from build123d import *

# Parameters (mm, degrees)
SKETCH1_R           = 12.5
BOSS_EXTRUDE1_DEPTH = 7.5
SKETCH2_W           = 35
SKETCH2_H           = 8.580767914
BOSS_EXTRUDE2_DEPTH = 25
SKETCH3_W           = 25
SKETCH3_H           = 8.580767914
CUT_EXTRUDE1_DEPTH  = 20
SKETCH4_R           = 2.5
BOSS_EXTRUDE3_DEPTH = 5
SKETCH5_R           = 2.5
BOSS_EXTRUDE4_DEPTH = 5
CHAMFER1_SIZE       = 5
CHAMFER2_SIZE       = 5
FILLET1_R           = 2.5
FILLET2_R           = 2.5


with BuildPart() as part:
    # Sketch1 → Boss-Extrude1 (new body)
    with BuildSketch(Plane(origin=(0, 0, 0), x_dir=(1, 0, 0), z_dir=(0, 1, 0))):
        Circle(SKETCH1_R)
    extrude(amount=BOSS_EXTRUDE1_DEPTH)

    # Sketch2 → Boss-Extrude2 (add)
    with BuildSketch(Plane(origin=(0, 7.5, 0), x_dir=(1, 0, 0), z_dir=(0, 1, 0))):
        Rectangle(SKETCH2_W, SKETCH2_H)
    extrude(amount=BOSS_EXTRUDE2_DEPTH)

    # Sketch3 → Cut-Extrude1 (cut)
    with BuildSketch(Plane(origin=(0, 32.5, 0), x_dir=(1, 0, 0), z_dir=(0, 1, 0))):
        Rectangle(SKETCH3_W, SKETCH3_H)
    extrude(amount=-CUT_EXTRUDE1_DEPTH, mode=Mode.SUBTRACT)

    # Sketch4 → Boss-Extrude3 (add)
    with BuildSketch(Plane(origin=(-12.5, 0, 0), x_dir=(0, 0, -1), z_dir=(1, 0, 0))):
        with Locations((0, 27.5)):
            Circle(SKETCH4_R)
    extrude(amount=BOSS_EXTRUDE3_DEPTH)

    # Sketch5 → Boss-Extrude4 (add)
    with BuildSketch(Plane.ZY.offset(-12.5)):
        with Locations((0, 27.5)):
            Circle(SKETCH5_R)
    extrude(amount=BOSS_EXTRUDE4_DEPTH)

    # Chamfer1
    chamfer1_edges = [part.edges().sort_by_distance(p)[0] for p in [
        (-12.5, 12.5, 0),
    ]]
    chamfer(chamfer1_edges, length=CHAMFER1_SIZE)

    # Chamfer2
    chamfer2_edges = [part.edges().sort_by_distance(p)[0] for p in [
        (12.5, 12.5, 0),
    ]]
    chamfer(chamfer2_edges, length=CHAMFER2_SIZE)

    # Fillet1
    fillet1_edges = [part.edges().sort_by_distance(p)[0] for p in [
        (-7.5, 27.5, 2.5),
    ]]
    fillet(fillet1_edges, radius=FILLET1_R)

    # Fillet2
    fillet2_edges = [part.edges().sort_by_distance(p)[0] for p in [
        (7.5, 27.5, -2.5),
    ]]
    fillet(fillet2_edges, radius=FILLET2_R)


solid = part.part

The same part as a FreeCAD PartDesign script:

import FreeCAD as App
import Part
import Sketcher
Q = App.Units.Quantity


def edges_at(feature, points):
    """Names of the edges that pass closest to the given points."""
    edges = feature.Shape.Edges
    near = lambda p: min(range(len(edges)), key=lambda i: edges[i].distToShape(Part.Vertex(*p))[0])
    return sorted({f"Edge{near(p) + 1}" for p in points})

doc = App.newDocument("Part")
body = doc.addObject("PartDesign::Body", "Body")

# Sketch on XZ plane
sketch1 = body.newObject("Sketcher::SketchObject", "Sketch")
sketch1.AttachmentSupport = (doc.getObject("XZ_Plane"), [""])
sketch1.MapMode = "FlatFace"
sketch1.addGeometry(Part.Circle(App.Vector(0, 0, 0), App.Vector(0, 0, 1), 12), False)
sketch1.addConstraint(Sketcher.Constraint("Coincident", 0, 3, -1, 1))
sketch1.addConstraint(Sketcher.Constraint("Diameter", 0, Q("25 mm")))
pad1 = body.newObject("PartDesign::Pad", "Pad")
pad1.Profile = sketch1
pad1.Length = 7.5
pad1.Reversed = True

# Sketch on XZ plane
sketch2 = body.newObject("Sketcher::SketchObject", "Sketch001")
sketch2.AttachmentSupport = (doc.getObject("XZ_Plane"), [""])
sketch2.MapMode = "FlatFace"
sketch2.AttachmentOffset = App.Placement(App.Vector(0, 0, -7.5), App.Rotation())
sketch2.addGeometry(Part.LineSegment(App.Vector(-18, -4, 0), App.Vector(-18, 4, 0)), False)
sketch2.addGeometry(Part.LineSegment(App.Vector(-18, 4, 0), App.Vector(18, 4, 0)), False)
sketch2.addGeometry(Part.LineSegment(App.Vector(18, 4, 0), App.Vector(18, -4, 0)), False)
sketch2.addGeometry(Part.LineSegment(App.Vector(18, -4, 0), App.Vector(-18, -4, 0)), False)
sketch2.addConstraint(Sketcher.Constraint("Coincident", 0, 2, 1, 1))
sketch2.addConstraint(Sketcher.Constraint("Coincident", 1, 2, 2, 1))
sketch2.addConstraint(Sketcher.Constraint("Coincident", 2, 2, 3, 1))
sketch2.addConstraint(Sketcher.Constraint("Coincident", 3, 2, 0, 1))
sketch2.addConstraint(Sketcher.Constraint("Vertical", 0))
sketch2.addConstraint(Sketcher.Constraint("Horizontal", 1))
sketch2.addConstraint(Sketcher.Constraint("Vertical", 2))
sketch2.addConstraint(Sketcher.Constraint("Horizontal", 3))
sketch2.addConstraint(Sketcher.Constraint("Symmetric", 0, 2, 2, 2, -1, 1))
sketch2.addConstraint(Sketcher.Constraint("DistanceX", 1, 1, 1, 2, Q("35 mm")))
sketch2.addConstraint(Sketcher.Constraint("DistanceY", 0, 1, 0, 2, Q("8.580768 mm")))
pad2 = body.newObject("PartDesign::Pad", "Pad001")
pad2.Profile = sketch2
pad2.Length = 25
pad2.Reversed = True

# Sketch on XZ plane
sketch3 = body.newObject("Sketcher::SketchObject", "Sketch002")
sketch3.AttachmentSupport = (doc.getObject("XZ_Plane"), [""])
sketch3.MapMode = "FlatFace"
sketch3.AttachmentOffset = App.Placement(App.Vector(0, 0, -32.5), App.Rotation())
sketch3.addGeometry(Part.LineSegment(App.Vector(-12, -4, 0), App.Vector(-12, 4, 0)), False)
sketch3.addGeometry(Part.LineSegment(App.Vector(-12, 4, 0), App.Vector(12, 4, 0)), False)
sketch3.addGeometry(Part.LineSegment(App.Vector(12, 4, 0), App.Vector(12, -4, 0)), False)
sketch3.addGeometry(Part.LineSegment(App.Vector(12, -4, 0), App.Vector(-12, -4, 0)), False)
sketch3.addConstraint(Sketcher.Constraint("Coincident", 0, 2, 1, 1))
sketch3.addConstraint(Sketcher.Constraint("Coincident", 1, 2, 2, 1))
sketch3.addConstraint(Sketcher.Constraint("Coincident", 2, 2, 3, 1))
sketch3.addConstraint(Sketcher.Constraint("Coincident", 3, 2, 0, 1))
sketch3.addConstraint(Sketcher.Constraint("Vertical", 0))
sketch3.addConstraint(Sketcher.Constraint("Horizontal", 1))
sketch3.addConstraint(Sketcher.Constraint("Vertical", 2))
sketch3.addConstraint(Sketcher.Constraint("Horizontal", 3))
sketch3.addConstraint(Sketcher.Constraint("Symmetric", 0, 2, 2, 2, -1, 1))
sketch3.addConstraint(Sketcher.Constraint("DistanceX", 1, 1, 1, 2, Q("25 mm")))
sketch3.addConstraint(Sketcher.Constraint("DistanceY", 0, 1, 0, 2, Q("8.580768 mm")))
pocket1 = body.newObject("PartDesign::Pocket", "Pocket")
pocket1.Profile = sketch3
pocket1.Length = 20
pocket1.Reversed = True

# Sketch on YZ plane
sketch4 = body.newObject("Sketcher::SketchObject", "Sketch003")
sketch4.AttachmentSupport = (doc.getObject("YZ_Plane"), [""])
sketch4.MapMode = "FlatFace"
sketch4.AttachmentOffset = App.Placement(App.Vector(0, 0, -12.5), App.Rotation())
sketch4.addGeometry(Part.Circle(App.Vector(27.5, 0, 0), App.Vector(0, 0, 1), 2.5), False)
sketch4.addConstraint(Sketcher.Constraint("PointOnObject", 0, 3, -1))
sketch4.addConstraint(Sketcher.Constraint("Diameter", 0, Q("5 mm")))
sketch4.addConstraint(Sketcher.Constraint("DistanceX", -1, 1, 0, 3, Q("27.5 mm")))
pad3 = body.newObject("PartDesign::Pad", "Pad002")
pad3.Profile = sketch4
pad3.Length = 5

# Sketch on YZ plane
sketch5 = body.newObject("Sketcher::SketchObject", "Sketch004")
sketch5.AttachmentSupport = (doc.getObject("YZ_Plane"), [""])
sketch5.MapMode = "FlatFace"
sketch5.AttachmentOffset = App.Placement(App.Vector(0, 0, 12.5), App.Rotation())
sketch5.addGeometry(Part.Circle(App.Vector(27.5, 0, 0), App.Vector(0, 0, 1), 2.5), False)
sketch5.addConstraint(Sketcher.Constraint("PointOnObject", 0, 3, -1))
sketch5.addConstraint(Sketcher.Constraint("Diameter", 0, Q("5 mm")))
sketch5.addConstraint(Sketcher.Constraint("DistanceX", -1, 1, 0, 3, Q("27.5 mm")))
pad4 = body.newObject("PartDesign::Pad", "Pad003")
pad4.Profile = sketch5
pad4.Length = 5
pad4.Reversed = True
doc.recompute()

chamfer = body.newObject("PartDesign::Chamfer", "Chamfer")
chamfer.Base = (pad4, edges_at(pad4, [(-12.5, 12.5, 0)]))
chamfer.Size = 5
doc.recompute()

chamfer2 = body.newObject("PartDesign::Chamfer", "Chamfer001")
chamfer2.Base = (chamfer, edges_at(chamfer, [(12.5, 12.5, 0)]))
chamfer2.Size = 5
doc.recompute()

fillet = body.newObject("PartDesign::Fillet", "Fillet")
fillet.Base = (chamfer2, edges_at(chamfer2, [(-7.5, 27.5, 2.5)]))
fillet.Radius = 2.5
doc.recompute()

fillet2 = body.newObject("PartDesign::Fillet", "Fillet001")
fillet2.Base = (fillet, edges_at(fillet, [(7.5, 27.5, -2.5)]))
fillet2.Radius = 2.5

doc.recompute()
